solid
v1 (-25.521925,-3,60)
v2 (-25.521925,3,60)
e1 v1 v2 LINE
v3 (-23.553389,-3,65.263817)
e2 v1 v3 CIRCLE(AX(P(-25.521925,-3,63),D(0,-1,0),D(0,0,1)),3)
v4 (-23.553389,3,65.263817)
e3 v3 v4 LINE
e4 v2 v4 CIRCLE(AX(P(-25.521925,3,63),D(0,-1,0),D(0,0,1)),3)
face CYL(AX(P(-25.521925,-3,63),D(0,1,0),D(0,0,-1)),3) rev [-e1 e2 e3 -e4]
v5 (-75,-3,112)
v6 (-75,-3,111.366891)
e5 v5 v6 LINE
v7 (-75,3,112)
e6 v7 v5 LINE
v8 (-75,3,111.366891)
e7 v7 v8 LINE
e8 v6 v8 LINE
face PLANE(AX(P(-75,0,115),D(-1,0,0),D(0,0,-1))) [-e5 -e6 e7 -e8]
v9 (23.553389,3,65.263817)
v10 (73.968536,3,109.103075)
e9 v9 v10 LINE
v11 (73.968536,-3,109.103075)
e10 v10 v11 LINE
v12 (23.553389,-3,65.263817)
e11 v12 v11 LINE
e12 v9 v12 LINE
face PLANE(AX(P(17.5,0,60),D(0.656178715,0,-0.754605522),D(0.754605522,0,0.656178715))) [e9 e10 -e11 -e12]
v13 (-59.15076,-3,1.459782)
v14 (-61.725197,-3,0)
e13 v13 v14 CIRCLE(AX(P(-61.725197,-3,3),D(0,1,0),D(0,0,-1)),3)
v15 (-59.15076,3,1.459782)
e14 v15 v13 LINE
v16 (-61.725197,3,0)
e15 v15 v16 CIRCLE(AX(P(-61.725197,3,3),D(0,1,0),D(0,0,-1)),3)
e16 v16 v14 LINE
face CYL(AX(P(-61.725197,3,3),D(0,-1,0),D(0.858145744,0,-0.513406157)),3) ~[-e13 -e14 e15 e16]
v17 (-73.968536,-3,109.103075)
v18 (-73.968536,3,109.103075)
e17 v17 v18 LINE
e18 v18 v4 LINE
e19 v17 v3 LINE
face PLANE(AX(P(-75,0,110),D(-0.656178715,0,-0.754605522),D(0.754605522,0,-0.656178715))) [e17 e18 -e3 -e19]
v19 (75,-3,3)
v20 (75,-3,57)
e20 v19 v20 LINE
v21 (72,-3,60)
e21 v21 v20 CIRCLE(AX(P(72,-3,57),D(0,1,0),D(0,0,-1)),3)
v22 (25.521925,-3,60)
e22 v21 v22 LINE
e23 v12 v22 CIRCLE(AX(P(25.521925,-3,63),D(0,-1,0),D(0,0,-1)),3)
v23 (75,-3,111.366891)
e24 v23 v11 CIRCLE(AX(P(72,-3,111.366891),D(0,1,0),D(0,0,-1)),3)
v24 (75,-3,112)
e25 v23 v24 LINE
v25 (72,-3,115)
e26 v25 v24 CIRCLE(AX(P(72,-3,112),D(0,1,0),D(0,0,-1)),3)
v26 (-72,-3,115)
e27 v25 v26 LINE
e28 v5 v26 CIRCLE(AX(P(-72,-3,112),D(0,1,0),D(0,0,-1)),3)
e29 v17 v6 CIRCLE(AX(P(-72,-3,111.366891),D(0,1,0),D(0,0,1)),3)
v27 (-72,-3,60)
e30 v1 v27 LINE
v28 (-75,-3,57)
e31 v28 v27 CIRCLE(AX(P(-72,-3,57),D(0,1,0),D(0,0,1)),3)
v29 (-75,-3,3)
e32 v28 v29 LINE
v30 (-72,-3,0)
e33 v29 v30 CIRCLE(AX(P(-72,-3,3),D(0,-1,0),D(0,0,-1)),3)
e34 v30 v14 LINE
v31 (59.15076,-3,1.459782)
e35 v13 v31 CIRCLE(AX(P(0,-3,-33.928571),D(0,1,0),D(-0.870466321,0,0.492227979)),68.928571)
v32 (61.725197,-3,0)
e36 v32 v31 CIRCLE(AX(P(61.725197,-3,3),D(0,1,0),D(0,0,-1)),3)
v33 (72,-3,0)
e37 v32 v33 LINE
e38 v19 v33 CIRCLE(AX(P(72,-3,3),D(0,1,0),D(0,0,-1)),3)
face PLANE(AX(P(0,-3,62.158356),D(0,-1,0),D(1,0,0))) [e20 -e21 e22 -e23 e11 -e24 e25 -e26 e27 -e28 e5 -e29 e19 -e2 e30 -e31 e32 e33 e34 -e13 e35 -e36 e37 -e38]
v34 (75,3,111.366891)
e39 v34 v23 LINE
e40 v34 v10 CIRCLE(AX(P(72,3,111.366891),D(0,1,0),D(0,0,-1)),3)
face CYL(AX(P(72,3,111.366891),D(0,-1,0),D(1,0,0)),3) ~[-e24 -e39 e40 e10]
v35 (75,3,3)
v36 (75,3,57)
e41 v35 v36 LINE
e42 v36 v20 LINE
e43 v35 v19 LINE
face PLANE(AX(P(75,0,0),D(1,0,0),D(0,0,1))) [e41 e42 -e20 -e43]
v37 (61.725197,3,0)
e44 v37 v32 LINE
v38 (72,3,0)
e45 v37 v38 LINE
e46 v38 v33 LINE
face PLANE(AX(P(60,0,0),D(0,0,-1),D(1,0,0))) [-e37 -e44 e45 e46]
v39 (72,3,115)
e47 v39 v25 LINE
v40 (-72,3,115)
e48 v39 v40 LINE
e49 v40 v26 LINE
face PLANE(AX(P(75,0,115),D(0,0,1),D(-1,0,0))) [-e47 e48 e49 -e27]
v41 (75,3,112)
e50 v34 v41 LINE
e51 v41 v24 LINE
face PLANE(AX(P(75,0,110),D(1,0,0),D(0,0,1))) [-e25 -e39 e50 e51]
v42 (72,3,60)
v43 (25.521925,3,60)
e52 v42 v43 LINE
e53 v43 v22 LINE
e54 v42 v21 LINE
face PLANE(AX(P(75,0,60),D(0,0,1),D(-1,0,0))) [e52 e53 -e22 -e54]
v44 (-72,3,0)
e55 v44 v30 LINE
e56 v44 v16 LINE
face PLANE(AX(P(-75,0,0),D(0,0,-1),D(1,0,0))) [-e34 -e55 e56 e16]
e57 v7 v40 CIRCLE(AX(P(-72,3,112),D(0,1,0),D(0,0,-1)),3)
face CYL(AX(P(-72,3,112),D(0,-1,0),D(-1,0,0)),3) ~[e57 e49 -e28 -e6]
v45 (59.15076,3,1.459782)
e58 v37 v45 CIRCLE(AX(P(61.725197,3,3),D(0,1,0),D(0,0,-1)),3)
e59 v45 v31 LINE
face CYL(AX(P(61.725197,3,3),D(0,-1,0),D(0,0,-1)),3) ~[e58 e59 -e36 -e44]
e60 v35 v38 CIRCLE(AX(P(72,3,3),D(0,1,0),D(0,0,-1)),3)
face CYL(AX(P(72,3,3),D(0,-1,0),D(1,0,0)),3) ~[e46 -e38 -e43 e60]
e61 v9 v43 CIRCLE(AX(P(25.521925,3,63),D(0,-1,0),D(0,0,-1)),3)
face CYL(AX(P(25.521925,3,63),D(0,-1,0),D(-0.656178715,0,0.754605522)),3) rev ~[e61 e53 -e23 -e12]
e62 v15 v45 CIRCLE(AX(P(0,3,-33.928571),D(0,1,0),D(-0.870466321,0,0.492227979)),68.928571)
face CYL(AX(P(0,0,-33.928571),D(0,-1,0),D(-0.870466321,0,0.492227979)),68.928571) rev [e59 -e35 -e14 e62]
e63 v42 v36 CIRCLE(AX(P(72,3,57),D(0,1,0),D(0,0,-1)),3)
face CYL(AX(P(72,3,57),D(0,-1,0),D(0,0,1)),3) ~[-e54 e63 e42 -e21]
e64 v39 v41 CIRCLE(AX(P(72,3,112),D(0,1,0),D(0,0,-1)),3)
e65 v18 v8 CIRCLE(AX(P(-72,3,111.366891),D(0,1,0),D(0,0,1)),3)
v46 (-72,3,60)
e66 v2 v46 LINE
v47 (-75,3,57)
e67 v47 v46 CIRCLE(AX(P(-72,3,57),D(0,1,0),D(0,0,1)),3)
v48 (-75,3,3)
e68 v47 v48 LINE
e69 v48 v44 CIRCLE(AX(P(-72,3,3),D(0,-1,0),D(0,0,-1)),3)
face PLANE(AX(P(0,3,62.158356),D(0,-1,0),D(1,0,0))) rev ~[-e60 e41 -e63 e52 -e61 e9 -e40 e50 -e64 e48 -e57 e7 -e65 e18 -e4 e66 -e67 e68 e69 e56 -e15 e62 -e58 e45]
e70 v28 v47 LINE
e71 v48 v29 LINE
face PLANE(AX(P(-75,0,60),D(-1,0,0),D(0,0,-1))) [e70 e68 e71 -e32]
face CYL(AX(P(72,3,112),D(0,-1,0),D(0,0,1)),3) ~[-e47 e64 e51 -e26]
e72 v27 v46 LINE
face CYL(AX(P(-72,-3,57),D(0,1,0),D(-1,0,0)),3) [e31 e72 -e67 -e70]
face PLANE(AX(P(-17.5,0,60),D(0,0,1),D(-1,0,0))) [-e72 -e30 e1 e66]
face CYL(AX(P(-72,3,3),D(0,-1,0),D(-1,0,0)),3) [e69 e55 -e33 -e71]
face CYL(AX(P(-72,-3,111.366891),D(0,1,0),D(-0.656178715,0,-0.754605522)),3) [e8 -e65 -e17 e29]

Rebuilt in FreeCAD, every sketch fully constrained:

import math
import FreeCAD as App
import Part
import Sketcher
from FreeCAD import Vector
Q = App.Units.Quantity


def edges_at(feature, points):
    """Names of the edges that pass closest to the given points."""
    edges = feature.Shape.Edges
    near = lambda p: min(range(len(edges)), key=lambda i: edges[i].distToShape(Part.Vertex(*p))[0])
    return sorted({f"Edge{near(p) + 1}" for p in points})

doc = App.newDocument("Part")
body = doc.addObject("PartDesign::Body", "Body")

sketch1 = body.newObject("Sketcher::SketchObject", "Sketch")
sketch1.AttachmentSupport = (doc.getObject("XZ_Plane"), [""])
sketch1.MapMode = "FlatFace"
sketch1.addGeometry(Part.LineSegment(Vector(-75, 60, 0), Vector(-75, 0, 0)), False)
sketch1.addGeometry(Part.LineSegment(Vector(-75, 0, 0), Vector(-60, 0, 0)), False)
sketch1.addGeometry(Part.ArcOfCircle(Part.Circle(Vector(0, -34, 0), Vector(0, 0, 1), 69), math.radians(29), math.radians(151)), False)
sketch1.addGeometry(Part.LineSegment(Vector(60, 0, 0), Vector(75, 0, 0)), False)
sketch1.addGeometry(Part.LineSegment(Vector(75, 0, 0), Vector(75, 60, 0)), False)
sketch1.addGeometry(Part.LineSegment(Vector(75, 60, 0), Vector(18, 60, 0)), False)
sketch1.addGeometry(Part.LineSegment(Vector(18, 60, 0), Vector(75, 110, 0)), False)
sketch1.addGeometry(Part.LineSegment(Vector(75, 110, 0), Vector(75, 115, 0)), False)
sketch1.addGeometry(Part.LineSegment(Vector(75, 115, 0), Vector(-75, 115, 0)), False)
sketch1.addGeometry(Part.LineSegment(Vector(-75, 115, 0), Vector(-75, 110, 0)), False)
sketch1.addGeometry(Part.LineSegment(Vector(-75, 110, 0), Vector(-18, 60, 0)), False)
sketch1.addGeometry(Part.LineSegment(Vector(-18, 60, 0), Vector(-75, 60, 0)), False)
sketch1.addConstraint(Sketcher.Constraint("Coincident", 0, 2, 1, 1))
sketch1.addConstraint(Sketcher.Constraint("Coincident", 1, 2, 2, 2))
sketch1.addConstraint(Sketcher.Constraint("Coincident", 2, 1, 3, 1))
sketch1.addConstraint(Sketcher.Constraint("Coincident", 3, 2, 4, 1))
sketch1.addConstraint(Sketcher.Constraint("Coincident", 4, 2, 5, 1))
sketch1.addConstraint(Sketcher.Constraint("Coincident", 5, 2, 6, 1))
sketch1.addConstraint(Sketcher.Constraint("Coincident", 6, 2, 7, 1))
sketch1.addConstraint(Sketcher.Constraint("Coincident", 7, 2, 8, 1))
sketch1.addConstraint(Sketcher.Constraint("Coincident", 8, 2, 9, 1))
sketch1.addConstraint(Sketcher.Constraint("Coincident", 9, 2, 10, 1))
sketch1.addConstraint(Sketcher.Constraint("Coincident", 10, 2, 11, 1))
sketch1.addConstraint(Sketcher.Constraint("Coincident", 11, 2, 0, 1))
sketch1.addConstraint(Sketcher.Constraint("Vertical", 0))
sketch1.addConstraint(Sketcher.Constraint("Horizontal", 1))
sketch1.addConstraint(Sketcher.Constraint("Horizontal", 3))
sketch1.addConstraint(Sketcher.Constraint("Vertical", 4))
sketch1.addConstraint(Sketcher.Constraint("Horizontal", 5))
sketch1.addConstraint(Sketcher.Constraint("Vertical", 7))
sketch1.addConstraint(Sketcher.Constraint("Horizontal", 8))
sketch1.addConstraint(Sketcher.Constraint("Vertical", 9))
sketch1.addConstraint(Sketcher.Constraint("Horizontal", 11))
sketch1.addConstraint(Sketcher.Constraint("Symmetric", 1, 2, 2, 1, -1, 1))
sketch1.addConstraint(Sketcher.Constraint("Symmetric", 0, 2, 3, 2, -2))
sketch1.addConstraint(Sketcher.Constraint("Symmetric", 6, 2, 9, 2, -2))
sketch1.addConstraint(Sketcher.Constraint("Symmetric", 5, 2, 10, 2, -2))
sketch1.addConstraint(Sketcher.Constraint("Vertical", 4, 2, 6, 2))
sketch1.addConstraint(Sketcher.Constraint("DistanceX", 1, 1, 1, 2, Q("15 mm")))
sketch1.addConstraint(Sketcher.Constraint("DistanceX", 8, 2, 8, 1, Q("150 mm")))
sketch1.addConstraint(Sketcher.Constraint("DistanceY", 0, 2, 0, 1, Q("60 mm")))
sketch1.addConstraint(Sketcher.Constraint("DistanceY", 7, 1, 7, 2, Q("5 mm")))
sketch1.addConstraint(Sketcher.Constraint("DistanceX", 5, 2, 5, 1, Q("57.5 mm")))
sketch1.addConstraint(Sketcher.Constraint("DistanceY", -1, 1, 6, 2, Q("110 mm")))
sketch1.addConstraint(Sketcher.Constraint("Radius", 2, Q("68.928571 mm")))
pad1 = body.newObject("PartDesign::Pad", "Pad")
pad1.Profile = sketch1
pad1.Length = 6
pad1.Midplane = True
doc.recompute()

fillet = body.newObject("PartDesign::Fillet", "Fillet")
fillet.Base = (pad1, edges_at(pad1, [
    (-17.5, 0, 60),
    (17.5, 0, 60),
    (75, 0, 60),
    (75, 0, 0),
    (-60, 0, 0),
    (-75, 0, 60),
    (60, 0, 0),
    (-75, 0, 0),
    (-75, 0, 115),
    (-75, 0, 110),
    (75, 0, 115),
    (75, 0, 110),
]))
fillet.Radius = 3

doc.recompute()
